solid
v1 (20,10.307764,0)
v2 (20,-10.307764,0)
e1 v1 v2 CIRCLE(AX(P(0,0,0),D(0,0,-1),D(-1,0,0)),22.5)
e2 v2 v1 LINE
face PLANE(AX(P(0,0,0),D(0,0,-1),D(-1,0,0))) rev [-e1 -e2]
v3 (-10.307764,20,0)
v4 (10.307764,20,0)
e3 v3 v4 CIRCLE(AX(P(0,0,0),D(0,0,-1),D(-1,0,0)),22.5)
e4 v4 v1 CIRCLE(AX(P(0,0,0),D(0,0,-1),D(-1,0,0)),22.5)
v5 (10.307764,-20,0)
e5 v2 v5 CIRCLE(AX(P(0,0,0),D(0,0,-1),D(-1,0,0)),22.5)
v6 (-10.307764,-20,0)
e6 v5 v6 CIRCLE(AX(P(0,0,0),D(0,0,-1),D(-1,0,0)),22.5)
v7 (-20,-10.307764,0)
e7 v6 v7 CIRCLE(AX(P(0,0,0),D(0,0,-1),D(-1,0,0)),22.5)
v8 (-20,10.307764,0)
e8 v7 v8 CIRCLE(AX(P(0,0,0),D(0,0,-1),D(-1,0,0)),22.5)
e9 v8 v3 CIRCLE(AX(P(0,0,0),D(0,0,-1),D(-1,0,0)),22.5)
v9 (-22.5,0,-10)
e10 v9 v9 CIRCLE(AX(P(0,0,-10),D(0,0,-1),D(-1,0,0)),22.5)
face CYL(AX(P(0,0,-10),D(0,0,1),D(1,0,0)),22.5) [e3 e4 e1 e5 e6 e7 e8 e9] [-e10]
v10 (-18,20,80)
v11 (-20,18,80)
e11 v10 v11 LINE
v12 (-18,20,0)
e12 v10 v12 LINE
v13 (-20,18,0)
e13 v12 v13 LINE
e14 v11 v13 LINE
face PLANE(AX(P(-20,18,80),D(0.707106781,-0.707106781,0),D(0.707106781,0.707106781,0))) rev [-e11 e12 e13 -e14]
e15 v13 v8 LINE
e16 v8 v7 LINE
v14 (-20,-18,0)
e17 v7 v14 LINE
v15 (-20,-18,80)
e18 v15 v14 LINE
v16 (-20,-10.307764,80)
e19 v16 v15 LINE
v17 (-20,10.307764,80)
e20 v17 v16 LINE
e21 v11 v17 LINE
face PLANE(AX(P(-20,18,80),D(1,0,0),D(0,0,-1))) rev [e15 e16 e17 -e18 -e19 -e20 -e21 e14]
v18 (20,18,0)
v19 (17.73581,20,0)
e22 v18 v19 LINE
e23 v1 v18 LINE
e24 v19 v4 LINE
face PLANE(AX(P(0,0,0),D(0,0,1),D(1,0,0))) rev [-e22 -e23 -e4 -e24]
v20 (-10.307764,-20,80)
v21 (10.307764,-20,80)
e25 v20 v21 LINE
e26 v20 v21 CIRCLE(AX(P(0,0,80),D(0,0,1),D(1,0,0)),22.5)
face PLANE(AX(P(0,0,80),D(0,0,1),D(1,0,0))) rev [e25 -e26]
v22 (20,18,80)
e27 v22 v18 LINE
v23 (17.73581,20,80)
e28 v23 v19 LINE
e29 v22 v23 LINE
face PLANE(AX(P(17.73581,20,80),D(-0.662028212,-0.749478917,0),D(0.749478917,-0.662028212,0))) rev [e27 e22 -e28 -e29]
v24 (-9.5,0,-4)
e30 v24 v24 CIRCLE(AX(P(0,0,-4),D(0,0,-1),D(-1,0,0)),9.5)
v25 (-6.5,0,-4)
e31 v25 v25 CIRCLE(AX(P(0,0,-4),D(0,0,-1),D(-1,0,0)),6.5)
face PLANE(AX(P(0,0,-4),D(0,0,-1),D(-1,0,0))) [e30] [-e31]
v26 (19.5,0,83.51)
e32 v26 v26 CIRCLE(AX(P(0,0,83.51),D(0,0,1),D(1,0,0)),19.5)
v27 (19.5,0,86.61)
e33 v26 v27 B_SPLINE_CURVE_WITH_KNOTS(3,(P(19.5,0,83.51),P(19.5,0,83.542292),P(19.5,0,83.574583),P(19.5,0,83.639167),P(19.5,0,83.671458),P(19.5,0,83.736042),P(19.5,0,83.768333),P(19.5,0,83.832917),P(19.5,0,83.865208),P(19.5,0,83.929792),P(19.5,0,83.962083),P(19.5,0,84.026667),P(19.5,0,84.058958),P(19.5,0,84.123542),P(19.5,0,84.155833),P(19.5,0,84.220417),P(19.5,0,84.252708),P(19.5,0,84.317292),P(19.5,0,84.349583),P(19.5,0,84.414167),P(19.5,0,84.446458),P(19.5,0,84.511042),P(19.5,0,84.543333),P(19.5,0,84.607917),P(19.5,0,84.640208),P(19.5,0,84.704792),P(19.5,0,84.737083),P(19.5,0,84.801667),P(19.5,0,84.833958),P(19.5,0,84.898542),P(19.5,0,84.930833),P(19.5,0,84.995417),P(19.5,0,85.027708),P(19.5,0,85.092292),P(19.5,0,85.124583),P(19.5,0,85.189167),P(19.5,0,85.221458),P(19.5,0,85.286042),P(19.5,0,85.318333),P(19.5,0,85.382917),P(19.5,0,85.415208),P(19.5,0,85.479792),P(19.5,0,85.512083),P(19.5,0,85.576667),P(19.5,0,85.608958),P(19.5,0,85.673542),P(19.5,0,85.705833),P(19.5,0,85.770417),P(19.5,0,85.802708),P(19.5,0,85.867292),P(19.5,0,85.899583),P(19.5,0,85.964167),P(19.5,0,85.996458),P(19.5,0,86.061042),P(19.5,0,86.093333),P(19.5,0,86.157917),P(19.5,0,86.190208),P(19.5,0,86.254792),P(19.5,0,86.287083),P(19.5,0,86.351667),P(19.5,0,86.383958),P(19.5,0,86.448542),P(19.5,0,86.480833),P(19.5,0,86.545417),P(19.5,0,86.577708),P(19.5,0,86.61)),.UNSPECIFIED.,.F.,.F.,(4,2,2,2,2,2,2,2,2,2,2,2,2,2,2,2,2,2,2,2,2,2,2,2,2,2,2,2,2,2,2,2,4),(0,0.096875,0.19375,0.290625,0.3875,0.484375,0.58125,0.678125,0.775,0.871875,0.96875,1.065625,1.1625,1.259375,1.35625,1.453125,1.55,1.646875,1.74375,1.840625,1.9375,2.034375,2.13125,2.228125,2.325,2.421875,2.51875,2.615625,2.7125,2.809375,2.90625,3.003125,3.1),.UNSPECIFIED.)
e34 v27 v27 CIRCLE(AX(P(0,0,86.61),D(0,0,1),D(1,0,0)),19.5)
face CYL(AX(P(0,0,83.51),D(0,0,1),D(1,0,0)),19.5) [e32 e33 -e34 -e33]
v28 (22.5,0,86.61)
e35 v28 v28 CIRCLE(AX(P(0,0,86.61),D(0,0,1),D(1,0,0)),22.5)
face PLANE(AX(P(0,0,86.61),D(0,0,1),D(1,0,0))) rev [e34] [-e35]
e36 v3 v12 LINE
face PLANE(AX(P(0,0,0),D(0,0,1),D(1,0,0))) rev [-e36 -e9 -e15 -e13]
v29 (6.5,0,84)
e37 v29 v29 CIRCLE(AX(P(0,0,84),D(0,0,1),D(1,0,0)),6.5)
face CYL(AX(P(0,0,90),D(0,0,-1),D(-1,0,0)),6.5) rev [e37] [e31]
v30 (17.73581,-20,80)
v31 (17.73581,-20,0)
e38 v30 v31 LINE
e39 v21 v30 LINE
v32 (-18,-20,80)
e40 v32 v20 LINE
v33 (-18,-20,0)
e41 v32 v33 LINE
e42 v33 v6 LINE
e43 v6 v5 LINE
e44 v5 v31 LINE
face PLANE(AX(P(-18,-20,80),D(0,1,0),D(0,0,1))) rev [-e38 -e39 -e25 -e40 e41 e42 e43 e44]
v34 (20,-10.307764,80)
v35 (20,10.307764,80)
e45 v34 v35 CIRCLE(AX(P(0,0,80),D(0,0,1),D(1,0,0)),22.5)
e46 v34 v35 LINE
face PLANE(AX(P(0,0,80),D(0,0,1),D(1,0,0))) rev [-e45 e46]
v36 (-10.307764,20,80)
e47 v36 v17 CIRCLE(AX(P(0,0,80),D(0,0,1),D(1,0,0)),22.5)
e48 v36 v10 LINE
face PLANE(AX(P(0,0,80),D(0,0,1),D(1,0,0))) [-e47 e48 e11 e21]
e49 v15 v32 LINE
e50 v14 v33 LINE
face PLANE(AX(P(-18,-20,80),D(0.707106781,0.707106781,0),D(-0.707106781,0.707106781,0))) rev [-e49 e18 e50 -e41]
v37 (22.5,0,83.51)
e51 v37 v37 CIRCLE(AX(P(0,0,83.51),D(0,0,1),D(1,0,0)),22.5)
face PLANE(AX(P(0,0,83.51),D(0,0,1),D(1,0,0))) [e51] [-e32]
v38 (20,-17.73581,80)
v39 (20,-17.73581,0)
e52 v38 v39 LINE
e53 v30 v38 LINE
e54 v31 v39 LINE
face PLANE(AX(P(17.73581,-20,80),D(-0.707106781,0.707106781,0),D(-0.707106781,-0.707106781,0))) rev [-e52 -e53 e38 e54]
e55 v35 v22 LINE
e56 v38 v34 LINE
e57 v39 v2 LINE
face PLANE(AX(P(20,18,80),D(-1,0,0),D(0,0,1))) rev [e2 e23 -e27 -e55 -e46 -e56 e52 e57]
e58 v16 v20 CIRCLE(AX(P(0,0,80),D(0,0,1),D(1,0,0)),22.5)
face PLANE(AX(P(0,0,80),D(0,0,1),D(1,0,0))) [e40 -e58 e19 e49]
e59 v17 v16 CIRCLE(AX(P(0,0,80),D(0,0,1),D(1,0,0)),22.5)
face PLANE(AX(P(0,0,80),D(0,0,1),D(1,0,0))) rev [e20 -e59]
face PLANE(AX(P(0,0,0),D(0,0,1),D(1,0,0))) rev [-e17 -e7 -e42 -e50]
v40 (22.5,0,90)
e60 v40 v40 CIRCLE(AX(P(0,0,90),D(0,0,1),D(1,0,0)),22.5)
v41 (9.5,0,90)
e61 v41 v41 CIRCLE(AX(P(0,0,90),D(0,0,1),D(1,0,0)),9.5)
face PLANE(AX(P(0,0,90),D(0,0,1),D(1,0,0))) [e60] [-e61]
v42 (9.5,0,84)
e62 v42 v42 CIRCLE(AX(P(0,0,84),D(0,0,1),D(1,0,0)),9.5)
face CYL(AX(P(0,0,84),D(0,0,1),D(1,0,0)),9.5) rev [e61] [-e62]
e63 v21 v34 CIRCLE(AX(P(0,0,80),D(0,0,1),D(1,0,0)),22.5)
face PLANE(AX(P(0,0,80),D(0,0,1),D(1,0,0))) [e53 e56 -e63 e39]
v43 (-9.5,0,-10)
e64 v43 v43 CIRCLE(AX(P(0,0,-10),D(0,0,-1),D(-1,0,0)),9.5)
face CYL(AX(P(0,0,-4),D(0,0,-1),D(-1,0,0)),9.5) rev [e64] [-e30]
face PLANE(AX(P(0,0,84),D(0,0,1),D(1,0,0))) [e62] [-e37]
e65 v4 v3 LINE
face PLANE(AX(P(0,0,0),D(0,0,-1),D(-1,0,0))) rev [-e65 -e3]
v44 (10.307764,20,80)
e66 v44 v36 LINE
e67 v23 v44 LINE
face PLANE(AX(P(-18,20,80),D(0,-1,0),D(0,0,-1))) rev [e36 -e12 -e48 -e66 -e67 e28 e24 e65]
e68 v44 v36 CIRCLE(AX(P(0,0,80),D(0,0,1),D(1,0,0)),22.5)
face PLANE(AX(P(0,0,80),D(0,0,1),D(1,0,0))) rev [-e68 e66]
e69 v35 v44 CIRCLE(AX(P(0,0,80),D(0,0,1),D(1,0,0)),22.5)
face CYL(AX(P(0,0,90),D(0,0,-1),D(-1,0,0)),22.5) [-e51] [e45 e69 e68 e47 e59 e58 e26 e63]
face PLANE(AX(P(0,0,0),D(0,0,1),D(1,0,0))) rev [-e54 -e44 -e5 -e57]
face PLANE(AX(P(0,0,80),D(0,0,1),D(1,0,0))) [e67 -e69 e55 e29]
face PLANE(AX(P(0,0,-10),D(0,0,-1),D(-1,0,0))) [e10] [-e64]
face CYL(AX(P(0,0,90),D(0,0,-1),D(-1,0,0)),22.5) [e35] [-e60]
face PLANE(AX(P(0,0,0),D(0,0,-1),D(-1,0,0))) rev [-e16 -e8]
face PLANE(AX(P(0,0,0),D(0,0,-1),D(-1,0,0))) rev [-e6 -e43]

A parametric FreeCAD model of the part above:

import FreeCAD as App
import Part
import Sketcher

V = App.Vector


def add_polygon(sketch, points):
    """Adds a closed chain of lines whose ends are joined by coincident constraints."""
    first, n = sketch.GeometryCount, len(points)
    for a, b in zip(points, points[1:] + points[:1]):
        sketch.addGeometry(Part.LineSegment(App.Vector(*a, 0), App.Vector(*b, 0)), False)
    for i in range(n):
        sketch.addConstraint(Sketcher.Constraint("Coincident", first + i, 2, first + (i + 1) % n, 1))

doc = App.newDocument("Part")
body = doc.addObject("PartDesign::Body", "Body")

# Sketch on XY plane
sketch1 = body.newObject("Sketcher::SketchObject", "Sketch")
sketch1.AttachmentSupport = (doc.getObject("XY_Plane"), [""])
sketch1.MapMode = "FlatFace"
add_polygon(sketch1, [(-18, 20), (-20, 18), (-20, -18), (-18, -20), (17.7, -20), (20, -17.7), (20, 18), (17.7, 20)])  # lines 0-7
sketch1.addConstraint([
    Sketcher.Constraint("Vertical", 1),
    Sketcher.Constraint("Horizontal", 3),
    Sketcher.Constraint("Vertical", 5),
    Sketcher.Constraint("Horizontal", 7),
    Sketcher.Constraint("Symmetric", 1, 2, 5, 2, -1, 1),
    Sketcher.Constraint("Symmetric", 3, 2, 6, 2, -1),
    Sketcher.Constraint("Perpendicular", 0, 2),
    Sketcher.Constraint("Perpendicular", 2, 4),
    Sketcher.Constraint("Horizontal", 0, 2, 5, 2),
    Sketcher.Constraint("Vertical", 2, 2, 7, 2),
    Sketcher.Constraint("Equal", 7, 5),
    Sketcher.Constraint("DistanceY", 1, 2, 1, 1, 36.0),
    Sketcher.Constraint("DistanceX", 0, 2, -1, 1, 20.0),
    Sketcher.Constraint("DistanceX", 3, 1, 3, 2, 35.73581),
])
pad1 = body.newObject("PartDesign::Pad", "Pad")
pad1.Profile = sketch1
pad1.Length = 80

# Sketch on XY plane
sketch2 = body.newObject("Sketcher::SketchObject", "Sketch001")
sketch2.AttachmentSupport = (doc.getObject("XY_Plane"), [""])
sketch2.MapMode = "FlatFace"
sketch2.AttachmentOffset = App.Placement(V(0, 0, 80), App.Rotation())
sketch2.addGeometry(Part.Circle(V(0, 0, 0), V(0, 0, 1), 22), False)
sketch2.addConstraint([
    Sketcher.Constraint("Coincident", 0, 3, -1, 1),
    Sketcher.Constraint("Diameter", 0, 45.0),
])
pad2 = body.newObject("PartDesign::Pad", "Pad001")
pad2.Profile = sketch2
pad2.Length = 10

# Sketch on XY plane
sketch3 = body.newObject("Sketcher::SketchObject", "Sketch002")
sketch3.AttachmentSupport = (doc.getObject("XY_Plane"), [""])
sketch3.MapMode = "FlatFace"
sketch3.AttachmentOffset = App.Placement(V(0, 0, -10), App.Rotation())
sketch3.addGeometry(Part.Circle(V(0, 0, 0), V(0, 0, 1), 22), False)
sketch3.addConstraint([
    Sketcher.Constraint("Coincident", 0, 3, -1, 1),
    Sketcher.Constraint("Diameter", 0, 45.0),
])
pad3 = body.newObject("PartDesign::Pad", "Pad002")
pad3.Profile = sketch3
pad3.Length = 10

# Sketch on XY plane
sketch4 = body.newObject("Sketcher::SketchObject", "Sketch003")
sketch4.AttachmentSupport = (doc.getObject("XY_Plane"), [""])
sketch4.MapMode = "FlatFace"
sketch4.AttachmentOffset = App.Placement(V(0, 0, -10), App.Rotation())
sketch4.addGeometry(Part.Circle(V(0, 0, 0), V(0, 0, 1), 10), False)
sketch4.addConstraint([
    Sketcher.Constraint("Coincident", 0, 3, -1, 1),
    Sketcher.Constraint("Diameter", 0, 19.0),
])
pocket1 = body.newObject("PartDesign::Pocket", "Pocket")
pocket1.Profile = sketch4
pocket1.Length = 6
pocket1.Reversed = True

# Sketch on XY plane
sketch5 = body.newObject("Sketcher::SketchObject", "Sketch004")
sketch5.AttachmentSupport = (doc.getObject("XY_Plane"), [""])
sketch5.MapMode = "FlatFace"
sketch5.AttachmentOffset = App.Placement(V(0, 0, 84), App.Rotation())
sketch5.addGeometry(Part.Circle(V(0, 0, 0), V(0, 0, 1), 10), False)
sketch5.addConstraint([
    Sketcher.Constraint("Coincident", 0, 3, -1, 1),
    Sketcher.Constraint("Diameter", 0, 19.0),
])
pocket2 = body.newObject("PartDesign::Pocket", "Pocket001")
pocket2.Profile = sketch5
pocket2.Length = 6
pocket2.Reversed = True

# Sketch on XY plane
sketch6 = body.newObject("Sketcher::SketchObject", "Sketch005")
sketch6.AttachmentSupport = (doc.getObject("XY_Plane"), [""])
sketch6.MapMode = "FlatFace"
sketch6.AttachmentOffset = App.Placement(V(0, 0, -10), App.Rotation())
sketch6.addGeometry(Part.Circle(V(0, 0, 0), V(0, 0, 1), 6), False)
sketch6.addConstraint([
    Sketcher.Constraint("Coincident", 0, 3, -1, 1),
    Sketcher.Constraint("Diameter", 0, 13.0),
])
pocket3 = body.newObject("PartDesign::Pocket", "Pocket002")
pocket3.Profile = sketch6
pocket3.Length = 100
pocket3.Reversed = True

# Sketch on XY plane
sketch7 = body.newObject("Sketcher::SketchObject", "Sketch006")
sketch7.AttachmentSupport = (doc.getObject("XY_Plane"), [""])
sketch7.MapMode = "FlatFace"
sketch7.AttachmentOffset = App.Placement(V(0, 0, 83.51), App.Rotation())
sketch7.addGeometry([
    Part.Circle(V(0, 0, 0), V(0, 0, 1), 22),
    Part.Circle(V(0, 0, 0), V(0, 0, 1), 20),
], False)
sketch7.addConstraint([
    Sketcher.Constraint("Coincident", 0, 3, -1, 1),
    Sketcher.Constraint("Coincident", 1, 3, -1, 1),
    Sketcher.Constraint("Diameter", 0, 45.0),
    Sketcher.Constraint("Diameter", 1, 39.0),
])
pocket4 = body.newObject("PartDesign::Pocket", "Pocket003")
pocket4.Profile = sketch7
pocket4.Length = 3.1
pocket4.Reversed = True

doc.recompute()
